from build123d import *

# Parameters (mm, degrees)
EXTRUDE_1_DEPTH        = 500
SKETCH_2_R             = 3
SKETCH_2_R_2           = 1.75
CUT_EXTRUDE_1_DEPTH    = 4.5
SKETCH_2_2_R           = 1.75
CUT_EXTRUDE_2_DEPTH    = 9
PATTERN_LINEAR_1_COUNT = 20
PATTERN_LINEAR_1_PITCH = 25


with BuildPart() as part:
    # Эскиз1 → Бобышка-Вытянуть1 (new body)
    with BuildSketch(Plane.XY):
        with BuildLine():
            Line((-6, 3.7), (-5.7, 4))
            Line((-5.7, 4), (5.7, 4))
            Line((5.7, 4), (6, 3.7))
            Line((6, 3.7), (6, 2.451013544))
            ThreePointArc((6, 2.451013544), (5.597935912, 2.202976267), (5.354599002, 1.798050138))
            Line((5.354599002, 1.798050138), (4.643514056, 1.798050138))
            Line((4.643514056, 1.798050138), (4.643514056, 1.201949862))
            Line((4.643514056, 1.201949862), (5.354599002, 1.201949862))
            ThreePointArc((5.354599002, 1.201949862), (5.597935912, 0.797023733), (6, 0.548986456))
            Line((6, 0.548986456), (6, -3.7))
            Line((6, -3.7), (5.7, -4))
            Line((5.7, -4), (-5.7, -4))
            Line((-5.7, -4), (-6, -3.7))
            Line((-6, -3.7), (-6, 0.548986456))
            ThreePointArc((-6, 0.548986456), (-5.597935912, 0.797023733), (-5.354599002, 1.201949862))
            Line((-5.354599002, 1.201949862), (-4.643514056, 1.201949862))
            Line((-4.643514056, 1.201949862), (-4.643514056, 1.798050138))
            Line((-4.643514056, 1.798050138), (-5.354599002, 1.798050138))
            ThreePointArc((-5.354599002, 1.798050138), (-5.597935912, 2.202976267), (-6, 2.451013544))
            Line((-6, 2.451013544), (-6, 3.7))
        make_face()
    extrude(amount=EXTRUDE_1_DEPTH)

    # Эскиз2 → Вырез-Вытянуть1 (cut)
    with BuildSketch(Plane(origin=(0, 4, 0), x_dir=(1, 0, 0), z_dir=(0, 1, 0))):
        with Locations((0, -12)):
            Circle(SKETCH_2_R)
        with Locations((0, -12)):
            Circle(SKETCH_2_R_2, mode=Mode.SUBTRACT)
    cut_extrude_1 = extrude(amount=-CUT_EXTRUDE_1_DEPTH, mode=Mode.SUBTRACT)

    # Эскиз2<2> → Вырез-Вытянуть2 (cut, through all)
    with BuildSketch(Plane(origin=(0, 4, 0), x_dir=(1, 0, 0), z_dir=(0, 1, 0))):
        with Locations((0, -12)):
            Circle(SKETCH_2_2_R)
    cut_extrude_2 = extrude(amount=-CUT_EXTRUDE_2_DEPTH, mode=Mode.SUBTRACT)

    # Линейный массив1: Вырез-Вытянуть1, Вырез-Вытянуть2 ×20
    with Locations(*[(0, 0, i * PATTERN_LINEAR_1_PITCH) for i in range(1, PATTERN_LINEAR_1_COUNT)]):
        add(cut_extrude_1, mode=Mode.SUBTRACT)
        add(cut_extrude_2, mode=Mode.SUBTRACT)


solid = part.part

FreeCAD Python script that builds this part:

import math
import FreeCAD as App
import Part
import Sketcher
from FreeCAD import Vector
Q = App.Units.Quantity

doc = App.newDocument("Part")
body = doc.addObject("PartDesign::Body", "Body")

# Sketch on XY plane
sketch1 = body.newObject("Sketcher::SketchObject", "Sketch")
sketch1.AttachmentSupport = (doc.getObject("XY_Plane"), [""])
sketch1.MapMode = "FlatFace"
sketch1.addGeometry(Part.LineSegment(Vector(-5.7, 4, 0), Vector(-6, 3.7, 0)), False)
sketch1.addGeometry(Part.LineSegment(Vector(-6, 3.7, 0), Vector(-6, 2.45, 0)), False)
sketch1.addGeometry(Part.ArcOfCircle(Part.Circle(Vector(-6.31, 1.5, 0), Vector(0, 0, 1), 1), math.radians(17), math.radians(72)), False)
sketch1.addGeometry(Part.LineSegment(Vector(-5.35, 1.8, 0), Vector(-4.64, 1.8, 0)), False)
sketch1.addGeometry(Part.LineSegment(Vector(-4.64, 1.8, 0), Vector(-4.64, 1.2, 0)), False)
sketch1.addGeometry(Part.LineSegment(Vector(-4.64, 1.2, 0), Vector(-5.35, 1.2, 0)), False)
sketch1.addGeometry(Part.ArcOfCircle(Part.Circle(Vector(-6.31, 1.5, 0), Vector(0, 0, 1), 1), math.radians(-72), math.radians(-17)), False)
sketch1.addGeometry(Part.LineSegment(Vector(-6, 0.55, 0), Vector(-6, -3.7, 0)), False)
sketch1.addGeometry(Part.LineSegment(Vector(-6, -3.7, 0), Vector(-5.7, -4, 0)), False)
sketch1.addGeometry(Part.LineSegment(Vector(-5.7, -4, 0), Vector(5.7, -4, 0)), False)
sketch1.addGeometry(Part.LineSegment(Vector(5.7, -4, 0), Vector(6, -3.7, 0)), False)
sketch1.addGeometry(Part.LineSegment(Vector(6, -3.7, 0), Vector(6, 0.55, 0)), False)
sketch1.addGeometry(Part.ArcOfCircle(Part.Circle(Vector(6.31, 1.5, 0), Vector(0, 0, 1), 1), math.radians(-163), math.radians(-108)), False)
sketch1.addGeometry(Part.LineSegment(Vector(5.35, 1.2, 0), Vector(4.64, 1.2, 0)), False)
sketch1.addGeometry(Part.LineSegment(Vector(4.64, 1.2, 0), Vector(4.64, 1.8, 0)), False)
sketch1.addGeometry(Part.LineSegment(Vector(4.64, 1.8, 0), Vector(5.35, 1.8, 0)), False)
sketch1.addGeometry(Part.ArcOfCircle(Part.Circle(Vector(6.31, 1.5, 0), Vector(0, 0, 1), 1), math.radians(108), math.radians(163)), False)
sketch1.addGeometry(Part.LineSegment(Vector(6, 2.45, 0), Vector(6, 3.7, 0)), False)
sketch1.addGeometry(Part.LineSegment(Vector(6, 3.7, 0), Vector(5.7, 4, 0)), False)
sketch1.addGeometry(Part.LineSegment(Vector(5.7, 4, 0), Vector(-5.7, 4, 0)), False)
sketch1.addConstraint(Sketcher.Constraint("Coincident", 0, 2, 1, 1))
sketch1.addConstraint(Sketcher.Constraint("Coincident", 1, 2, 2, 2))
sketch1.addConstraint(Sketcher.Constraint("Coincident", 2, 1, 3, 1))
sketch1.addConstraint(Sketcher.Constraint("Coincident", 3, 2, 4, 1))
sketch1.addConstraint(Sketcher.Constraint("Coincident", 4, 2, 5, 1))
sketch1.addConstraint(Sketcher.Constraint("Coincident", 5, 2, 6, 2))
sketch1.addConstraint(Sketcher.Constraint("Coincident", 6, 1, 7, 1))
sketch1.addConstraint(Sketcher.Constraint("Coincident", 7, 2, 8, 1))
sketch1.addConstraint(Sketcher.Constraint("Coincident", 8, 2, 9, 1))
sketch1.addConstraint(Sketcher.Constraint("Coincident", 9, 2, 10, 1))
sketch1.addConstraint(Sketcher.Constraint("Coincident", 10, 2, 11, 1))
sketch1.addConstraint(Sketcher.Constraint("Coincident", 11, 2, 12, 2))
sketch1.addConstraint(Sketcher.Constraint("Coincident", 12, 1, 13, 1))
sketch1.addConstraint(Sketcher.Constraint("Coincident", 13, 2, 14, 1))
sketch1.addConstraint(Sketcher.Constraint("Coincident", 14, 2, 15, 1))
sketch1.addConstraint(Sketcher.Constraint("Coincident", 15, 2, 16, 2))
sketch1.addConstraint(Sketcher.Constraint("Coincident", 16, 1, 17, 1))
sketch1.addConstraint(Sketcher.Constraint("Coincident", 17, 2, 18, 1))
sketch1.addConstraint(Sketcher.Constraint("Coincident", 18, 2, 19, 1))
sketch1.addConstraint(Sketcher.Constraint("Coincident", 19, 2, 0, 1))
sketch1.addConstraint(Sketcher.Constraint("Vertical", 1))
sketch1.addConstraint(Sketcher.Constraint("Horizontal", 3))
sketch1.addConstraint(Sketcher.Constraint("Vertical", 4))
sketch1.addConstraint(Sketcher.Constraint("Horizontal", 5))
sketch1.addConstraint(Sketcher.Constraint("Vertical", 7))
sketch1.addConstraint(Sketcher.Constraint("Horizontal", 9))
sketch1.addConstraint(Sketcher.Constraint("Vertical", 11))
sketch1.addConstraint(Sketcher.Constraint("Horizontal", 13))
sketch1.addConstraint(Sketcher.Constraint("Vertical", 14))
sketch1.addConstraint(Sketcher.Constraint("Horizontal", 15))
sketch1.addConstraint(Sketcher.Constraint("Vertical", 17))
sketch1.addConstraint(Sketcher.Constraint("Horizontal", 19))
sketch1.addConstraint(Sketcher.Constraint("Coincident", 6, 3, 2, 3))
sketch1.addConstraint(Sketcher.Constraint("Coincident", 16, 3, 12, 3))
sketch1.addConstraint(Sketcher.Constraint("Equal", 2, 6))
sketch1.addConstraint(Sketcher.Constraint("Equal", 6, 12))
sketch1.addConstraint(Sketcher.Constraint("Equal", 12, 16))
sketch1.addConstraint(Sketcher.Constraint("Symmetric", 0, 2, 10, 2, -1, 1))
sketch1.addConstraint(Sketcher.Constraint("Symmetric", 7, 2, 17, 2, -1, 1))
sketch1.addConstraint(Sketcher.Constraint("Symmetric", 8, 2, 18, 2, -1, 1))
sketch1.addConstraint(Sketcher.Constraint("Symmetric", 2, 3, 12, 3, -2))
sketch1.addConstraint(Sketcher.Constraint("Symmetric", 7, 2, 10, 2, -2))
sketch1.addConstraint(Sketcher.Constraint("Symmetric", 4, 2, 13, 2, -2))
sketch1.addConstraint(Sketcher.Constraint("Perpendicular", 0, 8))
sketch1.addConstraint(Sketcher.Constraint("Perpendicular", 8, 10))
sketch1.addConstraint(Sketcher.Constraint("Horizontal", 3, 2, 14, 2))
sketch1.addConstraint(Sketcher.Constraint("Vertical", 2, 1, 5, 2))
sketch1.addConstraint(Sketcher.Constraint("Vertical", 9, 2, 18, 2))
sketch1.addConstraint(Sketcher.Constraint("Radius", 2, Q("1 mm")))
sketch1.addConstraint(Sketcher.Constraint("DistanceX", 9, 1, 9, 2, Q("11.4 mm")))
sketch1.addConstraint(Sketcher.Constraint("DistanceX", 0, 2, -1, 1, Q("6 mm")))
sketch1.addConstraint(Sketcher.Constraint("DistanceY", 8, 2, -1, 1, Q("4 mm")))
sketch1.addConstraint(Sketcher.Constraint("DistanceY", -1, 1, 2, 3, Q("1.5 mm")))
sketch1.addConstraint(Sketcher.Constraint("DistanceY", 4, 2, 4, 1, Q("0.5961 mm")))
sketch1.addConstraint(Sketcher.Constraint("DistanceX", 2, 1, -1, 1, Q("5.354599 mm")))
sketch1.addConstraint(Sketcher.Constraint("DistanceX", 3, 1, 3, 2, Q("0.711085 mm")))
pad1 = body.newObject("PartDesign::Pad", "Pad")
pad1.Profile = sketch1
pad1.Length = 500

# Sketch on XZ plane
sketch2 = body.newObject("Sketcher::SketchObject", "Sketch001")
sketch2.AttachmentSupport = (doc.getObject("XZ_Plane"), [""])
sketch2.MapMode = "FlatFace"
sketch2.AttachmentOffset = App.Placement(Vector(0, 0, -4), App.Rotation())
sketch2.addGeometry(Part.Circle(Vector(0, 12, 0), Vector(0, 0, 1), 3), False)
sketch2.addGeometry(Part.Circle(Vector(0, 12, 0), Vector(0, 0, 1), 1.8), False)
sketch2.addConstraint(Sketcher.Constraint("Coincident", 1, 3, 0, 3))
sketch2.addConstraint(Sketcher.Constraint("PointOnObject", 0, 3, -2))
sketch2.addConstraint(Sketcher.Constraint("Diameter", 0, Q("6 mm")))
sketch2.addConstraint(Sketcher.Constraint("Diameter", 1, Q("3.5 mm")))
sketch2.addConstraint(Sketcher.Constraint("DistanceY", -1, 1, 0, 3, Q("12 mm")))
pocket1 = body.newObject("PartDesign::Pocket", "Pocket")
pocket1.Profile = sketch2
pocket1.Length = 4.5
pocket1.Reversed = True

# Sketch on XZ plane
sketch3 = body.newObject("Sketcher::SketchObject", "Sketch002")
sketch3.AttachmentSupport = (doc.getObject("XZ_Plane"), [""])
sketch3.MapMode = "FlatFace"
sketch3.AttachmentOffset = App.Placement(Vector(0, 0, -4), App.Rotation())
sketch3.addGeometry(Part.Circle(Vector(0, 12, 0), Vector(0, 0, 1), 1.8), False)
sketch3.addConstraint(Sketcher.Constraint("PointOnObject", 0, 3, -2))
sketch3.addConstraint(Sketcher.Constraint("Diameter", 0, Q("3.5 mm")))
sketch3.addConstraint(Sketcher.Constraint("DistanceY", -1, 1, 0, 3, Q("12 mm")))
pocket2 = body.newObject("PartDesign::Pocket", "Pocket001")
pocket2.Profile = sketch3
pocket2.Type = "ThroughAll"
pocket2.Reversed = True
doc.recompute()

linearpattern = body.newObject("PartDesign::LinearPattern", "LinearPattern")
linearpattern.Originals = [pocket1, pocket2]
linearpattern.Direction = (doc.getObject("Z_Axis"), [""])
linearpattern.Mode = "offset"
linearpattern.Offset = 25
linearpattern.Occurrences = 20
body.Tip = linearpattern

doc.recompute()
